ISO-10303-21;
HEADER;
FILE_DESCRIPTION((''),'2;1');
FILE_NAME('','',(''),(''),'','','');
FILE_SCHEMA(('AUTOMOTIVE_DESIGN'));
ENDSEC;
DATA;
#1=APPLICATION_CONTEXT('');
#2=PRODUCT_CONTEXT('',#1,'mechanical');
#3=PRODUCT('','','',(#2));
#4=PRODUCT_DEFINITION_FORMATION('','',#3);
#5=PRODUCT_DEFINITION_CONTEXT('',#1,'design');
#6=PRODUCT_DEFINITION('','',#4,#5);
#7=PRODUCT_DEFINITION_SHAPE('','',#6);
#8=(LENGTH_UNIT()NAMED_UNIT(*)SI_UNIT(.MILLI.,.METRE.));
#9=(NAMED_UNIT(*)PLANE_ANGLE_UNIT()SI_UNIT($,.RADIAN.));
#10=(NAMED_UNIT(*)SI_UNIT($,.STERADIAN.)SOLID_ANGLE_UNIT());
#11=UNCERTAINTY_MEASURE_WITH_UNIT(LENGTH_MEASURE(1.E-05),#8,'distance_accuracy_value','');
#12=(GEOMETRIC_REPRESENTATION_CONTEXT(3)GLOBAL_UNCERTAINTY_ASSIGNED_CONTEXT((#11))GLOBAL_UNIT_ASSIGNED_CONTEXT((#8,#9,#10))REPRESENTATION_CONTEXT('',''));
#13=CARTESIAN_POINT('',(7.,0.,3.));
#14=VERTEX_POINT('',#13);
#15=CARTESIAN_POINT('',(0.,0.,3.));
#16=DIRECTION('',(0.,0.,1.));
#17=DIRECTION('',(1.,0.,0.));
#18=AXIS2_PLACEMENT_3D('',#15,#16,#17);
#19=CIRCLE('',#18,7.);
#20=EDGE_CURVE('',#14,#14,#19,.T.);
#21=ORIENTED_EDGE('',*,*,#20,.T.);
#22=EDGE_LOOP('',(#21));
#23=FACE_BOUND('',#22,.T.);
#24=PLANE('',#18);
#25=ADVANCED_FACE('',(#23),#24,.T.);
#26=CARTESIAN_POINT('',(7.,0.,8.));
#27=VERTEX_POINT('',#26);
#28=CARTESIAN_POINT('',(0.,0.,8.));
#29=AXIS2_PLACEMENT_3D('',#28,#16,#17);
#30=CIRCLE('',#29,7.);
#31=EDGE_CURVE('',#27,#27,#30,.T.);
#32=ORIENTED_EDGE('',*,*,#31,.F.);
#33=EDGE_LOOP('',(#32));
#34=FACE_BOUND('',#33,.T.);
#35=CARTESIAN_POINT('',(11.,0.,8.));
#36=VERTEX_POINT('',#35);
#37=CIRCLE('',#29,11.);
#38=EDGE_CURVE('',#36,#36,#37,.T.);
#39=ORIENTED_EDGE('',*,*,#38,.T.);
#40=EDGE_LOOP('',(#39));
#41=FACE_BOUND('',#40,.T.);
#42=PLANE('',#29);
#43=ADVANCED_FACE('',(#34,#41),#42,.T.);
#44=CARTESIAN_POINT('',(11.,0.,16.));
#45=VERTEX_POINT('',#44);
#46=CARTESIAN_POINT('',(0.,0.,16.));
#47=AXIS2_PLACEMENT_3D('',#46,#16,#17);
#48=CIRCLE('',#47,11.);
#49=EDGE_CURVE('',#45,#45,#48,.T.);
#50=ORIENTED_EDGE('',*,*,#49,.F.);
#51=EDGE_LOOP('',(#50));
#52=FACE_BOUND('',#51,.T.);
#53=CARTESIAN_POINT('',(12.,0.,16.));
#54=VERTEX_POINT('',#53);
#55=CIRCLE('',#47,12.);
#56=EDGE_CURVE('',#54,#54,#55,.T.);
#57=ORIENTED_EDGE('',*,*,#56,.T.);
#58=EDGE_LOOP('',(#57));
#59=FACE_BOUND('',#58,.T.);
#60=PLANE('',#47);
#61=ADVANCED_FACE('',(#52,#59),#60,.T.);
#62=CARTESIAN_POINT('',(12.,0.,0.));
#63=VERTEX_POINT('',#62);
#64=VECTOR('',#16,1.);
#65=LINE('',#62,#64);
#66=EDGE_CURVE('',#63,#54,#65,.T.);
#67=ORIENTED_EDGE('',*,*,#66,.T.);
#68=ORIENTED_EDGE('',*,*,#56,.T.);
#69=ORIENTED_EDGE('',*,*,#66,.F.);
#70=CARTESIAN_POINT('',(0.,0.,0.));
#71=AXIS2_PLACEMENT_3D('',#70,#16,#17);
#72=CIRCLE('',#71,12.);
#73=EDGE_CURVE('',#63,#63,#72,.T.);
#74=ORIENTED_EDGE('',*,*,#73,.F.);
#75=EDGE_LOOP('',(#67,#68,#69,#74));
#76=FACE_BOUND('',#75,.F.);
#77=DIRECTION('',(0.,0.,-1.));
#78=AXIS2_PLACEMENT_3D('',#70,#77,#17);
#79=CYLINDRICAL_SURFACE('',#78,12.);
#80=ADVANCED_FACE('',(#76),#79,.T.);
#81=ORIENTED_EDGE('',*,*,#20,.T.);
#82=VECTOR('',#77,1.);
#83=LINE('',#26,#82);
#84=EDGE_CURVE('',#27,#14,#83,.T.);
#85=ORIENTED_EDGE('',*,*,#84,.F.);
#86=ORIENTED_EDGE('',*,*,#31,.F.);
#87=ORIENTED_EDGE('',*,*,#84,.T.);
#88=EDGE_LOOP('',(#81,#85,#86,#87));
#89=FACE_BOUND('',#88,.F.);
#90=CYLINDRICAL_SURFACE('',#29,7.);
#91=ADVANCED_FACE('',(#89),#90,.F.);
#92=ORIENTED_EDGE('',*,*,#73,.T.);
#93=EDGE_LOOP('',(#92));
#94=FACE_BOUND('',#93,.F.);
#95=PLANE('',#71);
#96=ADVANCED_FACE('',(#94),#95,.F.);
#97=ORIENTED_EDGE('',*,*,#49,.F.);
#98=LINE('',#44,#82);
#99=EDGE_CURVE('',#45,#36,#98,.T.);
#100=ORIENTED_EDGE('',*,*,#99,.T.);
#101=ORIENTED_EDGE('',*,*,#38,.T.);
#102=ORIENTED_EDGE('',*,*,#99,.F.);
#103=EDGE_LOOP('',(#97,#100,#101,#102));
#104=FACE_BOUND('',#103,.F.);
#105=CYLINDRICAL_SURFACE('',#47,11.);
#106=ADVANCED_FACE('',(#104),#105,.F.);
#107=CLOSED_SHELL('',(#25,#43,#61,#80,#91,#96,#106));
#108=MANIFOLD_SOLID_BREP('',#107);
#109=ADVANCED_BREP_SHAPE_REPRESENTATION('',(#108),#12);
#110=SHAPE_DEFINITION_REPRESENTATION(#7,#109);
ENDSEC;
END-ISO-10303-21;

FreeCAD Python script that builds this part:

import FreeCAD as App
import Part
import Sketcher

V = App.Vector

doc = App.newDocument("Part")
body = doc.addObject("PartDesign::Body", "Body")

sketch1 = body.newObject("Sketcher::SketchObject", "Sketch")
sketch1.AttachmentSupport = (doc.getObject("XY_Plane"), [""])
sketch1.MapMode = "FlatFace"
sketch1.addGeometry(Part.Circle(V(0, 0, 0), V(0, 0, 1), 12), False)
sketch1.addConstraint([
    Sketcher.Constraint("Coincident", 0, 3, -1, 1),
    Sketcher.Constraint("Diameter", 0, 24.0),
])
pad1 = body.newObject("PartDesign::Pad", "Pad")
pad1.Profile = sketch1
pad1.Length = 16

sketch2 = body.newObject("Sketcher::SketchObject", "Sketch001")
sketch2.AttachmentSupport = (doc.getObject("XY_Plane"), [""])
sketch2.MapMode = "FlatFace"
sketch2.AttachmentOffset = App.Placement(V(0, 0, 16), App.Rotation())
sketch2.addGeometry(Part.Circle(V(0, 0, 0), V(0, 0, 1), 11), False)
sketch2.addConstraint([
    Sketcher.Constraint("Coincident", 0, 3, -1, 1),
    Sketcher.Constraint("Diameter", 0, 22.0),
])
pocket1 = body.newObject("PartDesign::Pocket", "Pocket")
pocket1.Profile = sketch2
pocket1.Length = 8

sketch3 = body.newObject("Sketcher::SketchObject", "Sketch002")
sketch3.AttachmentSupport = (doc.getObject("XY_Plane"), [""])
sketch3.MapMode = "FlatFace"
sketch3.AttachmentOffset = App.Placement(V(0, 0, 8), App.Rotation())
sketch3.addGeometry(Part.Circle(V(0, 0, 0), V(0, 0, 1), 7), False)
sketch3.addConstraint([
    Sketcher.Constraint("Coincident", 0, 3, -1, 1),
    Sketcher.Constraint("Diameter", 0, 14.0),
])
pocket2 = body.newObject("PartDesign::Pocket", "Pocket001")
pocket2.Profile = sketch3
pocket2.Length = 5

doc.recompute()
